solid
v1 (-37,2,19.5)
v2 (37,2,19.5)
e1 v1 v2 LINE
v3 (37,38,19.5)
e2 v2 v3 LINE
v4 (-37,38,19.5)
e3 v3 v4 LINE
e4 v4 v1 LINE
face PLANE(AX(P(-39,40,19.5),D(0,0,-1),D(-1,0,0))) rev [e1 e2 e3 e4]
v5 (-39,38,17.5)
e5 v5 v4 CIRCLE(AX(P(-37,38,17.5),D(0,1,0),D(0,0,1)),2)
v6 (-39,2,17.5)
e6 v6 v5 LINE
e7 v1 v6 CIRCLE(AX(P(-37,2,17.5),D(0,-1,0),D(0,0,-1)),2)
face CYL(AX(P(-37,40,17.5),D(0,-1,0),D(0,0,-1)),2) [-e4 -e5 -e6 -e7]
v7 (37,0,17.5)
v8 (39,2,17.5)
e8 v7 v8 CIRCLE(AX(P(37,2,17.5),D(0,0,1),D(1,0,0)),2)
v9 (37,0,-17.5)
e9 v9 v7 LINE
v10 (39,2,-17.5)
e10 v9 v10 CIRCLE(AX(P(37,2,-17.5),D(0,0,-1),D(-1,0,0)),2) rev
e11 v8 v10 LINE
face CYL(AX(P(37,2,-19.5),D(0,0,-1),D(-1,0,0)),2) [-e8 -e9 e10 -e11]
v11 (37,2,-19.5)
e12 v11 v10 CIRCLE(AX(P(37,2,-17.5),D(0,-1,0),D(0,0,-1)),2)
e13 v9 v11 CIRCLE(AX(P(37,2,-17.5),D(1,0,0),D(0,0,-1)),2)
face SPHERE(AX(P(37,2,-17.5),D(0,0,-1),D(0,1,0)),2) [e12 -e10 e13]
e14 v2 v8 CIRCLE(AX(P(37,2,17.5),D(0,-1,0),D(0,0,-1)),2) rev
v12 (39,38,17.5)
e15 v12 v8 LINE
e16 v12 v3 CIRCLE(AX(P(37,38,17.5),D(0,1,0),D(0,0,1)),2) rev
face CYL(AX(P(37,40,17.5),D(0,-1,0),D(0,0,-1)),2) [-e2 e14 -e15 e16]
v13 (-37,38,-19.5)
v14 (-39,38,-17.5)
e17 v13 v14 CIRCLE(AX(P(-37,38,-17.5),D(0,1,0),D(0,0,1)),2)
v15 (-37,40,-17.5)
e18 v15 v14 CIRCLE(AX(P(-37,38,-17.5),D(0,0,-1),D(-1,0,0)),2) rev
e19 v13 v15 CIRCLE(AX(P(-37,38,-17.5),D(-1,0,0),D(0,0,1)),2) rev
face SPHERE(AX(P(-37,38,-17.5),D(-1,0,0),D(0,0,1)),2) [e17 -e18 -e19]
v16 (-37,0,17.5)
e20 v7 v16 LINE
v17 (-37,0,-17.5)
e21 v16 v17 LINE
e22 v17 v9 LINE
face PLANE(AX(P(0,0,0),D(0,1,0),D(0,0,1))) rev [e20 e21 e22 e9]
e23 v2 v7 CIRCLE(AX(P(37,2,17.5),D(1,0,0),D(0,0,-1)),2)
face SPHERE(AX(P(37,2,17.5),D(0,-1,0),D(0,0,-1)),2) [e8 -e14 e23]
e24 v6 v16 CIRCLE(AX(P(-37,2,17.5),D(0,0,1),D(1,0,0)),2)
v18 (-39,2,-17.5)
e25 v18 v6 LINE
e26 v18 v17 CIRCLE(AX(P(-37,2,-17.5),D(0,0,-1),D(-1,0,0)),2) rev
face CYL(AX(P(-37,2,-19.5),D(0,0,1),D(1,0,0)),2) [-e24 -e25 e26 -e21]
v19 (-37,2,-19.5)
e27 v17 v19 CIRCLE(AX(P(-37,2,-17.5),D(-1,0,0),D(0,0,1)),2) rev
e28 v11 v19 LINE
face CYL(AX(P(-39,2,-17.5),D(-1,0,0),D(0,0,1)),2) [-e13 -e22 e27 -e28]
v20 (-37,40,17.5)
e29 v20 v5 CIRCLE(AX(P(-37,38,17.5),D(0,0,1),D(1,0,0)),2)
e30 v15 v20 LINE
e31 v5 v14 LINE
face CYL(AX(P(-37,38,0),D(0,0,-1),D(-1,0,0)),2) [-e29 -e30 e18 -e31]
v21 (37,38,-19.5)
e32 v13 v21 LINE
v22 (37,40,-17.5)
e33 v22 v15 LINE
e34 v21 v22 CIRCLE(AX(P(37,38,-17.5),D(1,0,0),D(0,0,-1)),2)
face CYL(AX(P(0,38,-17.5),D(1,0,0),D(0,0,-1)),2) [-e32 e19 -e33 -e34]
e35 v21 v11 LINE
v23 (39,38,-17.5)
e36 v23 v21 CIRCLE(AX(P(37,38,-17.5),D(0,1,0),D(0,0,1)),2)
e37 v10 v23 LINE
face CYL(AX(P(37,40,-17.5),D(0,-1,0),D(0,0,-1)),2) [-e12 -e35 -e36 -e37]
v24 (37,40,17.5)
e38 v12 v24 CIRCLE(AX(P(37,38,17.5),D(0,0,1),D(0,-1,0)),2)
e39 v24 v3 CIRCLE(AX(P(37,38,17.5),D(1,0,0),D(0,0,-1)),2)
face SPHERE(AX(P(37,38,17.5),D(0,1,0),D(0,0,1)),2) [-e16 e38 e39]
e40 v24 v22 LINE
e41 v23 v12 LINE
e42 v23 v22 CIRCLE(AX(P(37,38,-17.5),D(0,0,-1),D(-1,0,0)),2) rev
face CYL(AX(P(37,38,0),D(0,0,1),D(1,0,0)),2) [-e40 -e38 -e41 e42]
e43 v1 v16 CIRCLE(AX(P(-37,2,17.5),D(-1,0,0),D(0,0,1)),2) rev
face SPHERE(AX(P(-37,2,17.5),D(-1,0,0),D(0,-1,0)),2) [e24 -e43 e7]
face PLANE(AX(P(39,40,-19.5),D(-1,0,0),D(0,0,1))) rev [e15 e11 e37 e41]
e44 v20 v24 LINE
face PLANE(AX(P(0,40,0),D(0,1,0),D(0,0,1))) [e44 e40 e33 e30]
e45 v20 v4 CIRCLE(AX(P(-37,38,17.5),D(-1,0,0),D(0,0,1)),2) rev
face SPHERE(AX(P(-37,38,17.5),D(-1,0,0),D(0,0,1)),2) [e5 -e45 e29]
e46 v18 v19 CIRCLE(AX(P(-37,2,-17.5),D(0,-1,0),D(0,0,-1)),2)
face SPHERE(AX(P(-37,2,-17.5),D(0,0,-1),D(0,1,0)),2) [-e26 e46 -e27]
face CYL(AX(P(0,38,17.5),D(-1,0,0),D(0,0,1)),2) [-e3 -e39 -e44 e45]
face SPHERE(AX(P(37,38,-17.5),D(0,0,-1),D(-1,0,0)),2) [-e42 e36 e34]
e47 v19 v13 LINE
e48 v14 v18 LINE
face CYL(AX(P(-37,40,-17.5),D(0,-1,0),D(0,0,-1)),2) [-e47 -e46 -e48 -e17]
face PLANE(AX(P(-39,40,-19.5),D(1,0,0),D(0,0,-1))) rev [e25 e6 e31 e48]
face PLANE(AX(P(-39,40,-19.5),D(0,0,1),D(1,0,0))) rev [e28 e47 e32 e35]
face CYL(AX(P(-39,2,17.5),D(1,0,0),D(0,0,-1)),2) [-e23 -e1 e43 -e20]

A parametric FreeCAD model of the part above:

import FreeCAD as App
import Part
import Sketcher
from FreeCAD import Vector

doc = App.newDocument("Part")
body = doc.addObject("PartDesign::Body", "Body")

# Sketch on XZ plane
sketch1 = body.newObject("Sketcher::SketchObject", "Sketch")
sketch1.AttachmentSupport = (doc.getObject("XZ_Plane"), [""])
sketch1.MapMode = "FlatFace"
sketch1.addGeometry(Part.LineSegment(Vector(-39, -20, 0), Vector(-39, 20, 0)), False)
sketch1.addGeometry(Part.LineSegment(Vector(-39, 20, 0), Vector(39, 20, 0)), False)
sketch1.addGeometry(Part.LineSegment(Vector(39, 20, 0), Vector(39, -20, 0)), False)
sketch1.addGeometry(Part.LineSegment(Vector(39, -20, 0), Vector(-39, -20, 0)), False)
sketch1.addConstraint(Sketcher.Constraint("Coincident", 0, 2, 1, 1))
sketch1.addConstraint(Sketcher.Constraint("Coincident", 1, 2, 2, 1))
sketch1.addConstraint(Sketcher.Constraint("Coincident", 2, 2, 3, 1))
sketch1.addConstraint(Sketcher.Constraint("Coincident", 3, 2, 0, 1))
sketch1.addConstraint(Sketcher.Constraint("Vertical", 0))
sketch1.addConstraint(Sketcher.Constraint("Horizontal", 1))
sketch1.addConstraint(Sketcher.Constraint("Vertical", 2))
sketch1.addConstraint(Sketcher.Constraint("Horizontal", 3))
sketch1.addConstraint(Sketcher.Constraint("Symmetric", 0, 2, 2, 2, -1, 1))
sketch1.addConstraint(Sketcher.Constraint("DistanceX", 1, 1, 1, 2, 78.0))
sketch1.addConstraint(Sketcher.Constraint("DistanceY", 0, 1, 0, 2, 39.0))
pad1 = body.newObject("PartDesign::Pad", "Pad")
pad1.Profile = sketch1
pad1.Length = 40
pad1.Reversed = True
doc.recompute()

fillet = body.newObject("PartDesign::Fillet", "Fillet")
fillet.Base = (pad1, ["Edge1"])
fillet.UseAllEdges = True
fillet.Radius = 2

doc.recompute()
